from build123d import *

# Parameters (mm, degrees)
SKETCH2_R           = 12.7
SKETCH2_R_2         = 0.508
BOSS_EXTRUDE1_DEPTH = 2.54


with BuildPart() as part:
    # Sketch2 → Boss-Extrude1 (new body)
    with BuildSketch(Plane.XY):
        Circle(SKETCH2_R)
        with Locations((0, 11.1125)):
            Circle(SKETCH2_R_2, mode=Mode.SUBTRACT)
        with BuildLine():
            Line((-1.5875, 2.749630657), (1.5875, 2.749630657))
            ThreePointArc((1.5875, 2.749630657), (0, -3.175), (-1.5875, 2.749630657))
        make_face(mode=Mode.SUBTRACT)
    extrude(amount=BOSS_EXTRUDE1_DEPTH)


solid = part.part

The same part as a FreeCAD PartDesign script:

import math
import FreeCAD as App
import Part
import Sketcher

V = App.Vector
Q = App.Units.Quantity

doc = App.newDocument("Part")
body = doc.addObject("PartDesign::Body", "Body")

# Sketch on XY plane
sketch1 = body.newObject("Sketcher::SketchObject", "Sketch")
sketch1.AttachmentSupport = (doc.getObject("XY_Plane"), [""])
sketch1.MapMode = "FlatFace"
sketch1.addGeometry([
    Part.Circle(V(0, 0, 0), V(0, 0, 1), 12.7),
    Part.ArcOfCircle(Part.Circle(V(0, 0, 0), V(0, 0, 1), 3.2), math.radians(120), math.radians(420)),
    Part.LineSegment(V(-1.6, 2.7, 0), V(1.6, 2.7, 0)),
    Part.Circle(V(0, 11.1, 0), V(0, 0, 1), 0.5),
], False)
sketch1.addConstraint([
    Sketcher.Constraint("Coincident", 1, 1, 2, 1),
    Sketcher.Constraint("Coincident", 2, 2, 1, 2),
    Sketcher.Constraint("Horizontal", 2),
    Sketcher.Constraint("Coincident", 0, 3, -1, 1),
    Sketcher.Constraint("Coincident", 1, 3, -1, 1),
    Sketcher.Constraint("PointOnObject", 3, 3, -2),
    Sketcher.Constraint("Diameter", 0, Q("1 in")),
    Sketcher.Constraint("Diameter", 3, Q("0.04 in")),
    Sketcher.Constraint("Radius", 1, Q("0.125 in")),
    Sketcher.Constraint("DistanceX", 2, 1, 2, 2, Q("0.125 in")),
    Sketcher.Constraint("DistanceY", -1, 1, 3, 3, Q("0.4375 in")),
])
pad1 = body.newObject("PartDesign::Pad", "Pad")
pad1.Profile = sketch1
pad1.Length = Q("0.1 in")

doc.recompute()
